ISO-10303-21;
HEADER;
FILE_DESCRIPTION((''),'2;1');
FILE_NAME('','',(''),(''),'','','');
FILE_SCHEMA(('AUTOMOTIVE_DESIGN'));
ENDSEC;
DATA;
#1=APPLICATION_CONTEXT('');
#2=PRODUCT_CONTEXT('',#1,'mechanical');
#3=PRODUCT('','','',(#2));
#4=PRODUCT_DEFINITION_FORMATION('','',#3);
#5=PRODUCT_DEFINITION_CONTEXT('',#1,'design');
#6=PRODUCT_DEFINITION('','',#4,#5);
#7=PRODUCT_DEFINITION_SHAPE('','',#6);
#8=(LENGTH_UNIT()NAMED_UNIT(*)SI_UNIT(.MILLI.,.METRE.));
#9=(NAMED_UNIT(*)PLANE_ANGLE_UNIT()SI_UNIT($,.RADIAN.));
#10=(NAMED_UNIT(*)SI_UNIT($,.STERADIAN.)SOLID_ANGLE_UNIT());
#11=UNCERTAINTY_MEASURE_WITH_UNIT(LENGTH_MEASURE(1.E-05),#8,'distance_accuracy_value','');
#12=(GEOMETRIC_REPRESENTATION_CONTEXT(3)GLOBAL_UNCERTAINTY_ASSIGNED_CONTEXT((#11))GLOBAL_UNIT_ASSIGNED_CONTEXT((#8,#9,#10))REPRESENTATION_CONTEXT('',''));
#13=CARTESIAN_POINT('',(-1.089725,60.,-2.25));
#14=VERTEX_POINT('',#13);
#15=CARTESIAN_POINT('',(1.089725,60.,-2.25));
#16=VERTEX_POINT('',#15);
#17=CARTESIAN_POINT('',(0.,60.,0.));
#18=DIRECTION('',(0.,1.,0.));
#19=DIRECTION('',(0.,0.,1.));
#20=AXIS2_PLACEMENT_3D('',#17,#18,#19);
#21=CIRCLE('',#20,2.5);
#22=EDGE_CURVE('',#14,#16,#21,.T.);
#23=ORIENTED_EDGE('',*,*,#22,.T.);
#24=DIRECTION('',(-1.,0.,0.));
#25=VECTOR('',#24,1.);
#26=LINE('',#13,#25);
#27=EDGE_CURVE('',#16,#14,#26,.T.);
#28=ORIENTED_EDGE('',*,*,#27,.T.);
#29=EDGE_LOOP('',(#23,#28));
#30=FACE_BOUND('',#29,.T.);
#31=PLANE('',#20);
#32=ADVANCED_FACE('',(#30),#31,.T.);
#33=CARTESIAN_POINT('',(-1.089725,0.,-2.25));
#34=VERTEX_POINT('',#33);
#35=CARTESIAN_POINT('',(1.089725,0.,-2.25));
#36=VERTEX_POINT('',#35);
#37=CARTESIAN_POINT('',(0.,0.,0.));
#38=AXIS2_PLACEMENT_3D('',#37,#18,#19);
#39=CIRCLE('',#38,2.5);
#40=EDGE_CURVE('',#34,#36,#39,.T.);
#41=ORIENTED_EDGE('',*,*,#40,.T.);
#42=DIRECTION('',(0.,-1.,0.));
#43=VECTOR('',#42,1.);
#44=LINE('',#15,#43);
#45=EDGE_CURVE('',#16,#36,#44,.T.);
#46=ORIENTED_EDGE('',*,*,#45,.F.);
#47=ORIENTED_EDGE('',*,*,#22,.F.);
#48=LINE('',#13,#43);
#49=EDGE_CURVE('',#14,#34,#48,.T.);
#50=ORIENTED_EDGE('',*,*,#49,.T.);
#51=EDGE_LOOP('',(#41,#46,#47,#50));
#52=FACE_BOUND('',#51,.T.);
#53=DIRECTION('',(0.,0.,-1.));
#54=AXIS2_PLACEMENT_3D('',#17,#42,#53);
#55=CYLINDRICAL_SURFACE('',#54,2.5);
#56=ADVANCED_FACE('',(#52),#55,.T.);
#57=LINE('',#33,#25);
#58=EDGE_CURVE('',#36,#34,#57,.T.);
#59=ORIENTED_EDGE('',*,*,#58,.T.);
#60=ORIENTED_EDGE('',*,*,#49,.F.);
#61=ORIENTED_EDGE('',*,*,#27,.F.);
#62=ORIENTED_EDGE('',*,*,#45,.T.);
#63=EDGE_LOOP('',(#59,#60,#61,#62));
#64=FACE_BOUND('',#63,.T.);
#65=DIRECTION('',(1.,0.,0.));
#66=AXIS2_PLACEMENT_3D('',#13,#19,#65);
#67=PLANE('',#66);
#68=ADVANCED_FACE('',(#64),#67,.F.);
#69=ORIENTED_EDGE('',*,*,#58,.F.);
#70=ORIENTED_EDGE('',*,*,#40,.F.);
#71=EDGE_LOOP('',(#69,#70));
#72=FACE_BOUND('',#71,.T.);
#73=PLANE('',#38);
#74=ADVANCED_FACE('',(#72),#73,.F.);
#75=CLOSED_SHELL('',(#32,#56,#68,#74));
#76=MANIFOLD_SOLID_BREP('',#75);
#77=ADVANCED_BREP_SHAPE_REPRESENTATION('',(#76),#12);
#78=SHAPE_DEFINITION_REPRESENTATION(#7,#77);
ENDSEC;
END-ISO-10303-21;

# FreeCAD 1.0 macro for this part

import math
import FreeCAD as App
import Part
import Sketcher
Q = App.Units.Quantity

doc = App.newDocument("Part")
body = doc.addObject("PartDesign::Body", "Body")

# Sketch on XZ plane
sketch1 = body.newObject("Sketcher::SketchObject", "Sketch")
sketch1.AttachmentSupport = (doc.getObject("XZ_Plane"), [""])
sketch1.MapMode = "FlatFace"
sketch1.addGeometry(Part.LineSegment(App.Vector(1.089725, -2.25, 0), App.Vector(-1.089725, -2.25, 0)), False)
sketch1.addGeometry(Part.ArcOfCircle(Part.Circle(App.Vector(0, 0, 0), App.Vector(0, 0, 1), 2.5), math.radians(-64.158067), math.radians(244.158067)), False)
sketch1.addConstraint(Sketcher.Constraint("Coincident", 0, 1, 1, 1))
sketch1.addConstraint(Sketcher.Constraint("Coincident", 1, 2, 0, 2))
sketch1.addConstraint(Sketcher.Constraint("Horizontal", 0))
sketch1.addConstraint(Sketcher.Constraint("Coincident", 1, 3, -1, 1))
sketch1.addConstraint(Sketcher.Constraint("Radius", 1, Q("2.5 mm")))
sketch1.addConstraint(Sketcher.Constraint("DistanceY", 0, 1, -1, 1, Q("2.25 mm")))
pad1 = body.newObject("PartDesign::Pad", "Pad")
pad1.Profile = sketch1
pad1.Length = 60
pad1.Reversed = True

doc.recompute()
